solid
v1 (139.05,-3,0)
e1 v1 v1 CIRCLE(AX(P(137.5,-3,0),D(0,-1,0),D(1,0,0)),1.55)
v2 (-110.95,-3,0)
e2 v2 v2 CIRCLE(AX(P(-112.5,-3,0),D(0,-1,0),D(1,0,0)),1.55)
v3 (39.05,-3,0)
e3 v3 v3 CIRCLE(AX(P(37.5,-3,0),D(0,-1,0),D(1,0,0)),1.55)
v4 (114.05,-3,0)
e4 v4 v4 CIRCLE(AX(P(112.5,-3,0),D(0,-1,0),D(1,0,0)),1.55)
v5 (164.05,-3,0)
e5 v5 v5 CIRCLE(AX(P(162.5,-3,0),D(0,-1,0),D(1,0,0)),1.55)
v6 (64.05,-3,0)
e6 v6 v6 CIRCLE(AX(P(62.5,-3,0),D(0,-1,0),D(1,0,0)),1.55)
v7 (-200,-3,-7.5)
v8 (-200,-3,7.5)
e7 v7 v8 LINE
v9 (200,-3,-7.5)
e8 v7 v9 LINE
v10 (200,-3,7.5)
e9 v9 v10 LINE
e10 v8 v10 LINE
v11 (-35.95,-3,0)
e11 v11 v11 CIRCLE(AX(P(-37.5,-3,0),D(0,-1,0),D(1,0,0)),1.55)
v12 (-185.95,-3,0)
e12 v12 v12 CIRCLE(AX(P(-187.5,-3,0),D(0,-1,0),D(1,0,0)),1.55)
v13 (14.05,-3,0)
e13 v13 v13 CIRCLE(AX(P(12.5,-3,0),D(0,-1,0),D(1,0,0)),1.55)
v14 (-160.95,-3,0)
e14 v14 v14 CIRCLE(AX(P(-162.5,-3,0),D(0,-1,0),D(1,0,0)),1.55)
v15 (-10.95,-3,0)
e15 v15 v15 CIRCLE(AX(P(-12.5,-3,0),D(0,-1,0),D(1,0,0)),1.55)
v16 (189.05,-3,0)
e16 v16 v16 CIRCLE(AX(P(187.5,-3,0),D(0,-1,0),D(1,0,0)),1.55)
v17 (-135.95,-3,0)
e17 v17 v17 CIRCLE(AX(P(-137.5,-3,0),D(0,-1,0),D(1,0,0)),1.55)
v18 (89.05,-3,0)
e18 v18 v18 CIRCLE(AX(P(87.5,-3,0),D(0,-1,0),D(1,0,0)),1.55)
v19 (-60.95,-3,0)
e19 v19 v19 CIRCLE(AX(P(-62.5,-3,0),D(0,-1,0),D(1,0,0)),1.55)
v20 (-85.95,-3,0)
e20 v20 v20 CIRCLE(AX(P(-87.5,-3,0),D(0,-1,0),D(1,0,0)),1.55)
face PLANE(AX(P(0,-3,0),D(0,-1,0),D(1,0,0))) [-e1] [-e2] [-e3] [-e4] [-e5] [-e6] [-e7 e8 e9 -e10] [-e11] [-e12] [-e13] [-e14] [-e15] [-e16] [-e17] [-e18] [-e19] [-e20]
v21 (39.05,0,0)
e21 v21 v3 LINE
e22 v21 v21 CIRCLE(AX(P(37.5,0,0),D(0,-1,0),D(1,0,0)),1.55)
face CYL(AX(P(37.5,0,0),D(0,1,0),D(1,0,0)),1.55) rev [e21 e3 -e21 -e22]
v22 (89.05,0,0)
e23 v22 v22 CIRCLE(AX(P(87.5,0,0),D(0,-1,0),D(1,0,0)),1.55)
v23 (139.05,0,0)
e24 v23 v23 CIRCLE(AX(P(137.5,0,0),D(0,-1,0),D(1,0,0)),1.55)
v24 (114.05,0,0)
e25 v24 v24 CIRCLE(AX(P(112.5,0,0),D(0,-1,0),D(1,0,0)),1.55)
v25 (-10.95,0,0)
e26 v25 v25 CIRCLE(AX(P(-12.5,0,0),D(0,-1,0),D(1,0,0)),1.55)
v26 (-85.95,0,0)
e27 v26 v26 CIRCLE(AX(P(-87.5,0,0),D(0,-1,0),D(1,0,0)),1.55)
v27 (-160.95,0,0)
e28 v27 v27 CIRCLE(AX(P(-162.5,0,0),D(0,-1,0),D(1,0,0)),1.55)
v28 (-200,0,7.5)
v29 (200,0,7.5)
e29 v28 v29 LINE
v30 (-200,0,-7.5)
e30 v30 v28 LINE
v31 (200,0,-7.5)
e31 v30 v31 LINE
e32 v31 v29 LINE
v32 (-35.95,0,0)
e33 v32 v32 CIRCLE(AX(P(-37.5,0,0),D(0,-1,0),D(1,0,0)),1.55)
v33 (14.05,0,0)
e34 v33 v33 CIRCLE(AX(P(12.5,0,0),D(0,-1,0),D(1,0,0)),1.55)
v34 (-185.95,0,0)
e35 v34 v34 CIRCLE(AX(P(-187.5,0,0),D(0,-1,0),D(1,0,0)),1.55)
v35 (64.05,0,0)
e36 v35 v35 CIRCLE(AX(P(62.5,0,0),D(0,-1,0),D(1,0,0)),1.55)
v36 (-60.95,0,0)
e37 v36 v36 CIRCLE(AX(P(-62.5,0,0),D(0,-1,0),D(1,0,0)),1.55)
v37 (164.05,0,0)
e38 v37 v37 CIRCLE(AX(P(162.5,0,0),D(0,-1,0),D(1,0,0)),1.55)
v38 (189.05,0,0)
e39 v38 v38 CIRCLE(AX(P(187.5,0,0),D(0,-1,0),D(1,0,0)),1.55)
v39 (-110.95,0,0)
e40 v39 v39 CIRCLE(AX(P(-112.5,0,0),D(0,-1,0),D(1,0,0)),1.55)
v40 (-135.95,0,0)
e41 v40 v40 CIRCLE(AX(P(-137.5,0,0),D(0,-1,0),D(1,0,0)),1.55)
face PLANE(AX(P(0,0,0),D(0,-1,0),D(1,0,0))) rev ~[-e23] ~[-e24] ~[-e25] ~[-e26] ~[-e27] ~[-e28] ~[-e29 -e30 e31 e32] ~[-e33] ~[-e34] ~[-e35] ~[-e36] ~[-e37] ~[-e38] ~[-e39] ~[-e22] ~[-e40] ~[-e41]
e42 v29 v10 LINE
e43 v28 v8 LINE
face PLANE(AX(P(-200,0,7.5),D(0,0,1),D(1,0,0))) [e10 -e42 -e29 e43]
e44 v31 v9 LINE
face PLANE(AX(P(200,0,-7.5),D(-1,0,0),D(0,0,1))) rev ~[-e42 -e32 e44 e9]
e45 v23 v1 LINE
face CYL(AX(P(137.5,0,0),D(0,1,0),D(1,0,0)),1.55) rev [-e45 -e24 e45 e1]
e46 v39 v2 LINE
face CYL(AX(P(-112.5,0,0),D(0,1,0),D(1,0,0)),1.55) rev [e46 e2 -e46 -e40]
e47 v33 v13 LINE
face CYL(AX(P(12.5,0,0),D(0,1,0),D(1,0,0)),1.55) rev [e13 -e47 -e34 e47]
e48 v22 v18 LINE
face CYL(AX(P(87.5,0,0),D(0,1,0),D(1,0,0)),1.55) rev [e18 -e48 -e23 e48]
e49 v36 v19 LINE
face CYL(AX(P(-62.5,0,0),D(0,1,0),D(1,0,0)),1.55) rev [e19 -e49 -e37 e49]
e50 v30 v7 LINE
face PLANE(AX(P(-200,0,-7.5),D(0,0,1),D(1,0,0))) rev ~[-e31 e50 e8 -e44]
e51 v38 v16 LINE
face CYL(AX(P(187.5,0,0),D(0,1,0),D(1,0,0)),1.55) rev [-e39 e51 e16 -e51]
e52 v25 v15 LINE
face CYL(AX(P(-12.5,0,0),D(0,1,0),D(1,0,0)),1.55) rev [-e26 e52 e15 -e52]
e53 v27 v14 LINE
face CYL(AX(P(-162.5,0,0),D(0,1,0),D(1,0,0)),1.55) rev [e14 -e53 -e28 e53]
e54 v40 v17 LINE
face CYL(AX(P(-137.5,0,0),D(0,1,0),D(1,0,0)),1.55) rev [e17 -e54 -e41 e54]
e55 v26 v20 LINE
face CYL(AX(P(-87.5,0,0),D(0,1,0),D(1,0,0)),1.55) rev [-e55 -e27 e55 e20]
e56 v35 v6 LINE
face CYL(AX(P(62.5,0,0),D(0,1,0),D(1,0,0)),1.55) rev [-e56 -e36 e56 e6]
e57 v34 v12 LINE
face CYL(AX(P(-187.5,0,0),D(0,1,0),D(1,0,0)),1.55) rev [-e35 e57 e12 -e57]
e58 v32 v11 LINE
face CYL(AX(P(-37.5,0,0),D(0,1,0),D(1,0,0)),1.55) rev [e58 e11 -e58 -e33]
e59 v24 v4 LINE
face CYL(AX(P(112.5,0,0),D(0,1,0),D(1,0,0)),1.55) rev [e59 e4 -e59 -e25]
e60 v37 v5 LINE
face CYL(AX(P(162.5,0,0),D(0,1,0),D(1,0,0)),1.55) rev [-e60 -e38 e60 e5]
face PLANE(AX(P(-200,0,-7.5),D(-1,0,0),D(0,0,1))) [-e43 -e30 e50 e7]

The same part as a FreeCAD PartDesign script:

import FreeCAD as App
import Part
import Sketcher


def add_polygon(sketch, points):
    """Adds a closed chain of lines whose ends are joined by coincident constraints."""
    first, n = sketch.GeometryCount, len(points)
    for a, b in zip(points, points[1:] + points[:1]):
        sketch.addGeometry(Part.LineSegment(App.Vector(*a, 0), App.Vector(*b, 0)), False)
    for i in range(n):
        sketch.addConstraint(Sketcher.Constraint("Coincident", first + i, 2, first + (i + 1) % n, 1))

doc = App.newDocument("Part")
body = doc.addObject("PartDesign::Body", "Body")

sketch1 = body.newObject("Sketcher::SketchObject", "Sketch")
sketch1.AttachmentSupport = (doc.getObject("XZ_Plane"), [""])
sketch1.MapMode = "FlatFace"
add_polygon(sketch1, [(-200, 7.5), (-200, -7.5), (200, -7.5), (200, 7.5)])
sketch1.addGeometry(Part.Circle(App.Vector(-187.5, 0, 0), App.Vector(0, 0, 1), 1.6), False)
sketch1.addGeometry(Part.Circle(App.Vector(-162.5, 0, 0), App.Vector(0, 0, 1), 1.6), False)
sketch1.addGeometry(Part.Circle(App.Vector(-137.5, 0, 0), App.Vector(0, 0, 1), 1.6), False)
sketch1.addGeometry(Part.Circle(App.Vector(-112.5, 0, 0), App.Vector(0, 0, 1), 1.6), False)
sketch1.addGeometry(Part.Circle(App.Vector(-87.5, 0, 0), App.Vector(0, 0, 1), 1.6), False)
sketch1.addGeometry(Part.Circle(App.Vector(-62.5, 0, 0), App.Vector(0, 0, 1), 1.6), False)
sketch1.addGeometry(Part.Circle(App.Vector(-37.5, 0, 0), App.Vector(0, 0, 1), 1.6), False)
sketch1.addGeometry(Part.Circle(App.Vector(-12.5, 0, 0), App.Vector(0, 0, 1), 1.6), False)
sketch1.addGeometry(Part.Circle(App.Vector(12.5, 0, 0), App.Vector(0, 0, 1), 1.6), False)
sketch1.addGeometry(Part.Circle(App.Vector(37.5, 0, 0), App.Vector(0, 0, 1), 1.6), False)
sketch1.addGeometry(Part.Circle(App.Vector(62.5, 0, 0), App.Vector(0, 0, 1), 1.6), False)
sketch1.addGeometry(Part.Circle(App.Vector(87.5, 0, 0), App.Vector(0, 0, 1), 1.6), False)
sketch1.addGeometry(Part.Circle(App.Vector(112.5, 0, 0), App.Vector(0, 0, 1), 1.6), False)
sketch1.addGeometry(Part.Circle(App.Vector(137.5, 0, 0), App.Vector(0, 0, 1), 1.6), False)
sketch1.addGeometry(Part.Circle(App.Vector(162.5, 0, 0), App.Vector(0, 0, 1), 1.6), False)
sketch1.addGeometry(Part.Circle(App.Vector(187.5, 0, 0), App.Vector(0, 0, 1), 1.6), False)
sketch1.addConstraint([
    Sketcher.Constraint("Vertical", 0),
    Sketcher.Constraint("Horizontal", 1),
    Sketcher.Constraint("Vertical", 2),
    Sketcher.Constraint("Horizontal", 3),
    Sketcher.Constraint("Equal", 4, 5),
    Sketcher.Constraint("Equal", 5, 6),
    Sketcher.Constraint("Equal", 6, 7),
    Sketcher.Constraint("Equal", 7, 8),
    Sketcher.Constraint("Equal", 8, 9),
    Sketcher.Constraint("Equal", 9, 10),
    Sketcher.Constraint("Equal", 10, 11),
    Sketcher.Constraint("Equal", 11, 12),
    Sketcher.Constraint("Equal", 12, 13),
    Sketcher.Constraint("Equal", 13, 14),
    Sketcher.Constraint("Equal", 14, 15),
    Sketcher.Constraint("Equal", 15, 16),
    Sketcher.Constraint("Equal", 16, 17),
    Sketcher.Constraint("Equal", 17, 18),
    Sketcher.Constraint("Equal", 18, 19),
    Sketcher.Constraint("Symmetric", 11, 3, 12, 3, -1, 1),
    Sketcher.Constraint("Symmetric", 10, 3, 13, 3, -1, 1),
    Sketcher.Constraint("Symmetric", 9, 3, 14, 3, -1, 1),
    Sketcher.Constraint("Symmetric", 8, 3, 15, 3, -1, 1),
    Sketcher.Constraint("Symmetric", 7, 3, 16, 3, -1, 1),
    Sketcher.Constraint("Symmetric", 6, 3, 17, 3, -1, 1),
    Sketcher.Constraint("Symmetric", 5, 3, 18, 3, -1, 1),
    Sketcher.Constraint("Symmetric", 4, 3, 19, 3, -1, 1),
    Sketcher.Constraint("Symmetric", 0, 2, 2, 2, -1, 1),
    Sketcher.Constraint("PointOnObject", 4, 3, -1),
    Sketcher.Constraint("PointOnObject", 5, 3, -1),
    Sketcher.Constraint("PointOnObject", 6, 3, -1),
    Sketcher.Constraint("PointOnObject", 7, 3, -1),
    Sketcher.Constraint("PointOnObject", 8, 3, -1),
    Sketcher.Constraint("PointOnObject", 9, 3, -1),
    Sketcher.Constraint("PointOnObject", 10, 3, -1),
    Sketcher.Constraint("PointOnObject", 11, 3, -1),
    Sketcher.Constraint("Diameter", 4, 3.1),
    Sketcher.Constraint("DistanceX", 1, 1, 1, 2, 400.0),
    Sketcher.Constraint("DistanceY", 0, 2, 0, 1, 15.0),
    Sketcher.Constraint("DistanceX", 4, 3, 5, 3, 25.0),
    Sketcher.Constraint("DistanceX", 5, 3, 6, 3, 25.0),
    Sketcher.Constraint("DistanceX", 6, 3, 7, 3, 25.0),
    Sketcher.Constraint("DistanceX", 7, 3, 8, 3, 25.0),
    Sketcher.Constraint("DistanceX", 8, 3, 9, 3, 25.0),
    Sketcher.Constraint("DistanceX", 9, 3, 10, 3, 25.0),
    Sketcher.Constraint("DistanceX", 10, 3, 11, 3, 25.0),
    Sketcher.Constraint("DistanceX", 11, 3, 12, 3, 25.0),
])
pad1 = body.newObject("PartDesign::Pad", "Pad")
pad1.Profile = sketch1
pad1.Length = 3

doc.recompute()
